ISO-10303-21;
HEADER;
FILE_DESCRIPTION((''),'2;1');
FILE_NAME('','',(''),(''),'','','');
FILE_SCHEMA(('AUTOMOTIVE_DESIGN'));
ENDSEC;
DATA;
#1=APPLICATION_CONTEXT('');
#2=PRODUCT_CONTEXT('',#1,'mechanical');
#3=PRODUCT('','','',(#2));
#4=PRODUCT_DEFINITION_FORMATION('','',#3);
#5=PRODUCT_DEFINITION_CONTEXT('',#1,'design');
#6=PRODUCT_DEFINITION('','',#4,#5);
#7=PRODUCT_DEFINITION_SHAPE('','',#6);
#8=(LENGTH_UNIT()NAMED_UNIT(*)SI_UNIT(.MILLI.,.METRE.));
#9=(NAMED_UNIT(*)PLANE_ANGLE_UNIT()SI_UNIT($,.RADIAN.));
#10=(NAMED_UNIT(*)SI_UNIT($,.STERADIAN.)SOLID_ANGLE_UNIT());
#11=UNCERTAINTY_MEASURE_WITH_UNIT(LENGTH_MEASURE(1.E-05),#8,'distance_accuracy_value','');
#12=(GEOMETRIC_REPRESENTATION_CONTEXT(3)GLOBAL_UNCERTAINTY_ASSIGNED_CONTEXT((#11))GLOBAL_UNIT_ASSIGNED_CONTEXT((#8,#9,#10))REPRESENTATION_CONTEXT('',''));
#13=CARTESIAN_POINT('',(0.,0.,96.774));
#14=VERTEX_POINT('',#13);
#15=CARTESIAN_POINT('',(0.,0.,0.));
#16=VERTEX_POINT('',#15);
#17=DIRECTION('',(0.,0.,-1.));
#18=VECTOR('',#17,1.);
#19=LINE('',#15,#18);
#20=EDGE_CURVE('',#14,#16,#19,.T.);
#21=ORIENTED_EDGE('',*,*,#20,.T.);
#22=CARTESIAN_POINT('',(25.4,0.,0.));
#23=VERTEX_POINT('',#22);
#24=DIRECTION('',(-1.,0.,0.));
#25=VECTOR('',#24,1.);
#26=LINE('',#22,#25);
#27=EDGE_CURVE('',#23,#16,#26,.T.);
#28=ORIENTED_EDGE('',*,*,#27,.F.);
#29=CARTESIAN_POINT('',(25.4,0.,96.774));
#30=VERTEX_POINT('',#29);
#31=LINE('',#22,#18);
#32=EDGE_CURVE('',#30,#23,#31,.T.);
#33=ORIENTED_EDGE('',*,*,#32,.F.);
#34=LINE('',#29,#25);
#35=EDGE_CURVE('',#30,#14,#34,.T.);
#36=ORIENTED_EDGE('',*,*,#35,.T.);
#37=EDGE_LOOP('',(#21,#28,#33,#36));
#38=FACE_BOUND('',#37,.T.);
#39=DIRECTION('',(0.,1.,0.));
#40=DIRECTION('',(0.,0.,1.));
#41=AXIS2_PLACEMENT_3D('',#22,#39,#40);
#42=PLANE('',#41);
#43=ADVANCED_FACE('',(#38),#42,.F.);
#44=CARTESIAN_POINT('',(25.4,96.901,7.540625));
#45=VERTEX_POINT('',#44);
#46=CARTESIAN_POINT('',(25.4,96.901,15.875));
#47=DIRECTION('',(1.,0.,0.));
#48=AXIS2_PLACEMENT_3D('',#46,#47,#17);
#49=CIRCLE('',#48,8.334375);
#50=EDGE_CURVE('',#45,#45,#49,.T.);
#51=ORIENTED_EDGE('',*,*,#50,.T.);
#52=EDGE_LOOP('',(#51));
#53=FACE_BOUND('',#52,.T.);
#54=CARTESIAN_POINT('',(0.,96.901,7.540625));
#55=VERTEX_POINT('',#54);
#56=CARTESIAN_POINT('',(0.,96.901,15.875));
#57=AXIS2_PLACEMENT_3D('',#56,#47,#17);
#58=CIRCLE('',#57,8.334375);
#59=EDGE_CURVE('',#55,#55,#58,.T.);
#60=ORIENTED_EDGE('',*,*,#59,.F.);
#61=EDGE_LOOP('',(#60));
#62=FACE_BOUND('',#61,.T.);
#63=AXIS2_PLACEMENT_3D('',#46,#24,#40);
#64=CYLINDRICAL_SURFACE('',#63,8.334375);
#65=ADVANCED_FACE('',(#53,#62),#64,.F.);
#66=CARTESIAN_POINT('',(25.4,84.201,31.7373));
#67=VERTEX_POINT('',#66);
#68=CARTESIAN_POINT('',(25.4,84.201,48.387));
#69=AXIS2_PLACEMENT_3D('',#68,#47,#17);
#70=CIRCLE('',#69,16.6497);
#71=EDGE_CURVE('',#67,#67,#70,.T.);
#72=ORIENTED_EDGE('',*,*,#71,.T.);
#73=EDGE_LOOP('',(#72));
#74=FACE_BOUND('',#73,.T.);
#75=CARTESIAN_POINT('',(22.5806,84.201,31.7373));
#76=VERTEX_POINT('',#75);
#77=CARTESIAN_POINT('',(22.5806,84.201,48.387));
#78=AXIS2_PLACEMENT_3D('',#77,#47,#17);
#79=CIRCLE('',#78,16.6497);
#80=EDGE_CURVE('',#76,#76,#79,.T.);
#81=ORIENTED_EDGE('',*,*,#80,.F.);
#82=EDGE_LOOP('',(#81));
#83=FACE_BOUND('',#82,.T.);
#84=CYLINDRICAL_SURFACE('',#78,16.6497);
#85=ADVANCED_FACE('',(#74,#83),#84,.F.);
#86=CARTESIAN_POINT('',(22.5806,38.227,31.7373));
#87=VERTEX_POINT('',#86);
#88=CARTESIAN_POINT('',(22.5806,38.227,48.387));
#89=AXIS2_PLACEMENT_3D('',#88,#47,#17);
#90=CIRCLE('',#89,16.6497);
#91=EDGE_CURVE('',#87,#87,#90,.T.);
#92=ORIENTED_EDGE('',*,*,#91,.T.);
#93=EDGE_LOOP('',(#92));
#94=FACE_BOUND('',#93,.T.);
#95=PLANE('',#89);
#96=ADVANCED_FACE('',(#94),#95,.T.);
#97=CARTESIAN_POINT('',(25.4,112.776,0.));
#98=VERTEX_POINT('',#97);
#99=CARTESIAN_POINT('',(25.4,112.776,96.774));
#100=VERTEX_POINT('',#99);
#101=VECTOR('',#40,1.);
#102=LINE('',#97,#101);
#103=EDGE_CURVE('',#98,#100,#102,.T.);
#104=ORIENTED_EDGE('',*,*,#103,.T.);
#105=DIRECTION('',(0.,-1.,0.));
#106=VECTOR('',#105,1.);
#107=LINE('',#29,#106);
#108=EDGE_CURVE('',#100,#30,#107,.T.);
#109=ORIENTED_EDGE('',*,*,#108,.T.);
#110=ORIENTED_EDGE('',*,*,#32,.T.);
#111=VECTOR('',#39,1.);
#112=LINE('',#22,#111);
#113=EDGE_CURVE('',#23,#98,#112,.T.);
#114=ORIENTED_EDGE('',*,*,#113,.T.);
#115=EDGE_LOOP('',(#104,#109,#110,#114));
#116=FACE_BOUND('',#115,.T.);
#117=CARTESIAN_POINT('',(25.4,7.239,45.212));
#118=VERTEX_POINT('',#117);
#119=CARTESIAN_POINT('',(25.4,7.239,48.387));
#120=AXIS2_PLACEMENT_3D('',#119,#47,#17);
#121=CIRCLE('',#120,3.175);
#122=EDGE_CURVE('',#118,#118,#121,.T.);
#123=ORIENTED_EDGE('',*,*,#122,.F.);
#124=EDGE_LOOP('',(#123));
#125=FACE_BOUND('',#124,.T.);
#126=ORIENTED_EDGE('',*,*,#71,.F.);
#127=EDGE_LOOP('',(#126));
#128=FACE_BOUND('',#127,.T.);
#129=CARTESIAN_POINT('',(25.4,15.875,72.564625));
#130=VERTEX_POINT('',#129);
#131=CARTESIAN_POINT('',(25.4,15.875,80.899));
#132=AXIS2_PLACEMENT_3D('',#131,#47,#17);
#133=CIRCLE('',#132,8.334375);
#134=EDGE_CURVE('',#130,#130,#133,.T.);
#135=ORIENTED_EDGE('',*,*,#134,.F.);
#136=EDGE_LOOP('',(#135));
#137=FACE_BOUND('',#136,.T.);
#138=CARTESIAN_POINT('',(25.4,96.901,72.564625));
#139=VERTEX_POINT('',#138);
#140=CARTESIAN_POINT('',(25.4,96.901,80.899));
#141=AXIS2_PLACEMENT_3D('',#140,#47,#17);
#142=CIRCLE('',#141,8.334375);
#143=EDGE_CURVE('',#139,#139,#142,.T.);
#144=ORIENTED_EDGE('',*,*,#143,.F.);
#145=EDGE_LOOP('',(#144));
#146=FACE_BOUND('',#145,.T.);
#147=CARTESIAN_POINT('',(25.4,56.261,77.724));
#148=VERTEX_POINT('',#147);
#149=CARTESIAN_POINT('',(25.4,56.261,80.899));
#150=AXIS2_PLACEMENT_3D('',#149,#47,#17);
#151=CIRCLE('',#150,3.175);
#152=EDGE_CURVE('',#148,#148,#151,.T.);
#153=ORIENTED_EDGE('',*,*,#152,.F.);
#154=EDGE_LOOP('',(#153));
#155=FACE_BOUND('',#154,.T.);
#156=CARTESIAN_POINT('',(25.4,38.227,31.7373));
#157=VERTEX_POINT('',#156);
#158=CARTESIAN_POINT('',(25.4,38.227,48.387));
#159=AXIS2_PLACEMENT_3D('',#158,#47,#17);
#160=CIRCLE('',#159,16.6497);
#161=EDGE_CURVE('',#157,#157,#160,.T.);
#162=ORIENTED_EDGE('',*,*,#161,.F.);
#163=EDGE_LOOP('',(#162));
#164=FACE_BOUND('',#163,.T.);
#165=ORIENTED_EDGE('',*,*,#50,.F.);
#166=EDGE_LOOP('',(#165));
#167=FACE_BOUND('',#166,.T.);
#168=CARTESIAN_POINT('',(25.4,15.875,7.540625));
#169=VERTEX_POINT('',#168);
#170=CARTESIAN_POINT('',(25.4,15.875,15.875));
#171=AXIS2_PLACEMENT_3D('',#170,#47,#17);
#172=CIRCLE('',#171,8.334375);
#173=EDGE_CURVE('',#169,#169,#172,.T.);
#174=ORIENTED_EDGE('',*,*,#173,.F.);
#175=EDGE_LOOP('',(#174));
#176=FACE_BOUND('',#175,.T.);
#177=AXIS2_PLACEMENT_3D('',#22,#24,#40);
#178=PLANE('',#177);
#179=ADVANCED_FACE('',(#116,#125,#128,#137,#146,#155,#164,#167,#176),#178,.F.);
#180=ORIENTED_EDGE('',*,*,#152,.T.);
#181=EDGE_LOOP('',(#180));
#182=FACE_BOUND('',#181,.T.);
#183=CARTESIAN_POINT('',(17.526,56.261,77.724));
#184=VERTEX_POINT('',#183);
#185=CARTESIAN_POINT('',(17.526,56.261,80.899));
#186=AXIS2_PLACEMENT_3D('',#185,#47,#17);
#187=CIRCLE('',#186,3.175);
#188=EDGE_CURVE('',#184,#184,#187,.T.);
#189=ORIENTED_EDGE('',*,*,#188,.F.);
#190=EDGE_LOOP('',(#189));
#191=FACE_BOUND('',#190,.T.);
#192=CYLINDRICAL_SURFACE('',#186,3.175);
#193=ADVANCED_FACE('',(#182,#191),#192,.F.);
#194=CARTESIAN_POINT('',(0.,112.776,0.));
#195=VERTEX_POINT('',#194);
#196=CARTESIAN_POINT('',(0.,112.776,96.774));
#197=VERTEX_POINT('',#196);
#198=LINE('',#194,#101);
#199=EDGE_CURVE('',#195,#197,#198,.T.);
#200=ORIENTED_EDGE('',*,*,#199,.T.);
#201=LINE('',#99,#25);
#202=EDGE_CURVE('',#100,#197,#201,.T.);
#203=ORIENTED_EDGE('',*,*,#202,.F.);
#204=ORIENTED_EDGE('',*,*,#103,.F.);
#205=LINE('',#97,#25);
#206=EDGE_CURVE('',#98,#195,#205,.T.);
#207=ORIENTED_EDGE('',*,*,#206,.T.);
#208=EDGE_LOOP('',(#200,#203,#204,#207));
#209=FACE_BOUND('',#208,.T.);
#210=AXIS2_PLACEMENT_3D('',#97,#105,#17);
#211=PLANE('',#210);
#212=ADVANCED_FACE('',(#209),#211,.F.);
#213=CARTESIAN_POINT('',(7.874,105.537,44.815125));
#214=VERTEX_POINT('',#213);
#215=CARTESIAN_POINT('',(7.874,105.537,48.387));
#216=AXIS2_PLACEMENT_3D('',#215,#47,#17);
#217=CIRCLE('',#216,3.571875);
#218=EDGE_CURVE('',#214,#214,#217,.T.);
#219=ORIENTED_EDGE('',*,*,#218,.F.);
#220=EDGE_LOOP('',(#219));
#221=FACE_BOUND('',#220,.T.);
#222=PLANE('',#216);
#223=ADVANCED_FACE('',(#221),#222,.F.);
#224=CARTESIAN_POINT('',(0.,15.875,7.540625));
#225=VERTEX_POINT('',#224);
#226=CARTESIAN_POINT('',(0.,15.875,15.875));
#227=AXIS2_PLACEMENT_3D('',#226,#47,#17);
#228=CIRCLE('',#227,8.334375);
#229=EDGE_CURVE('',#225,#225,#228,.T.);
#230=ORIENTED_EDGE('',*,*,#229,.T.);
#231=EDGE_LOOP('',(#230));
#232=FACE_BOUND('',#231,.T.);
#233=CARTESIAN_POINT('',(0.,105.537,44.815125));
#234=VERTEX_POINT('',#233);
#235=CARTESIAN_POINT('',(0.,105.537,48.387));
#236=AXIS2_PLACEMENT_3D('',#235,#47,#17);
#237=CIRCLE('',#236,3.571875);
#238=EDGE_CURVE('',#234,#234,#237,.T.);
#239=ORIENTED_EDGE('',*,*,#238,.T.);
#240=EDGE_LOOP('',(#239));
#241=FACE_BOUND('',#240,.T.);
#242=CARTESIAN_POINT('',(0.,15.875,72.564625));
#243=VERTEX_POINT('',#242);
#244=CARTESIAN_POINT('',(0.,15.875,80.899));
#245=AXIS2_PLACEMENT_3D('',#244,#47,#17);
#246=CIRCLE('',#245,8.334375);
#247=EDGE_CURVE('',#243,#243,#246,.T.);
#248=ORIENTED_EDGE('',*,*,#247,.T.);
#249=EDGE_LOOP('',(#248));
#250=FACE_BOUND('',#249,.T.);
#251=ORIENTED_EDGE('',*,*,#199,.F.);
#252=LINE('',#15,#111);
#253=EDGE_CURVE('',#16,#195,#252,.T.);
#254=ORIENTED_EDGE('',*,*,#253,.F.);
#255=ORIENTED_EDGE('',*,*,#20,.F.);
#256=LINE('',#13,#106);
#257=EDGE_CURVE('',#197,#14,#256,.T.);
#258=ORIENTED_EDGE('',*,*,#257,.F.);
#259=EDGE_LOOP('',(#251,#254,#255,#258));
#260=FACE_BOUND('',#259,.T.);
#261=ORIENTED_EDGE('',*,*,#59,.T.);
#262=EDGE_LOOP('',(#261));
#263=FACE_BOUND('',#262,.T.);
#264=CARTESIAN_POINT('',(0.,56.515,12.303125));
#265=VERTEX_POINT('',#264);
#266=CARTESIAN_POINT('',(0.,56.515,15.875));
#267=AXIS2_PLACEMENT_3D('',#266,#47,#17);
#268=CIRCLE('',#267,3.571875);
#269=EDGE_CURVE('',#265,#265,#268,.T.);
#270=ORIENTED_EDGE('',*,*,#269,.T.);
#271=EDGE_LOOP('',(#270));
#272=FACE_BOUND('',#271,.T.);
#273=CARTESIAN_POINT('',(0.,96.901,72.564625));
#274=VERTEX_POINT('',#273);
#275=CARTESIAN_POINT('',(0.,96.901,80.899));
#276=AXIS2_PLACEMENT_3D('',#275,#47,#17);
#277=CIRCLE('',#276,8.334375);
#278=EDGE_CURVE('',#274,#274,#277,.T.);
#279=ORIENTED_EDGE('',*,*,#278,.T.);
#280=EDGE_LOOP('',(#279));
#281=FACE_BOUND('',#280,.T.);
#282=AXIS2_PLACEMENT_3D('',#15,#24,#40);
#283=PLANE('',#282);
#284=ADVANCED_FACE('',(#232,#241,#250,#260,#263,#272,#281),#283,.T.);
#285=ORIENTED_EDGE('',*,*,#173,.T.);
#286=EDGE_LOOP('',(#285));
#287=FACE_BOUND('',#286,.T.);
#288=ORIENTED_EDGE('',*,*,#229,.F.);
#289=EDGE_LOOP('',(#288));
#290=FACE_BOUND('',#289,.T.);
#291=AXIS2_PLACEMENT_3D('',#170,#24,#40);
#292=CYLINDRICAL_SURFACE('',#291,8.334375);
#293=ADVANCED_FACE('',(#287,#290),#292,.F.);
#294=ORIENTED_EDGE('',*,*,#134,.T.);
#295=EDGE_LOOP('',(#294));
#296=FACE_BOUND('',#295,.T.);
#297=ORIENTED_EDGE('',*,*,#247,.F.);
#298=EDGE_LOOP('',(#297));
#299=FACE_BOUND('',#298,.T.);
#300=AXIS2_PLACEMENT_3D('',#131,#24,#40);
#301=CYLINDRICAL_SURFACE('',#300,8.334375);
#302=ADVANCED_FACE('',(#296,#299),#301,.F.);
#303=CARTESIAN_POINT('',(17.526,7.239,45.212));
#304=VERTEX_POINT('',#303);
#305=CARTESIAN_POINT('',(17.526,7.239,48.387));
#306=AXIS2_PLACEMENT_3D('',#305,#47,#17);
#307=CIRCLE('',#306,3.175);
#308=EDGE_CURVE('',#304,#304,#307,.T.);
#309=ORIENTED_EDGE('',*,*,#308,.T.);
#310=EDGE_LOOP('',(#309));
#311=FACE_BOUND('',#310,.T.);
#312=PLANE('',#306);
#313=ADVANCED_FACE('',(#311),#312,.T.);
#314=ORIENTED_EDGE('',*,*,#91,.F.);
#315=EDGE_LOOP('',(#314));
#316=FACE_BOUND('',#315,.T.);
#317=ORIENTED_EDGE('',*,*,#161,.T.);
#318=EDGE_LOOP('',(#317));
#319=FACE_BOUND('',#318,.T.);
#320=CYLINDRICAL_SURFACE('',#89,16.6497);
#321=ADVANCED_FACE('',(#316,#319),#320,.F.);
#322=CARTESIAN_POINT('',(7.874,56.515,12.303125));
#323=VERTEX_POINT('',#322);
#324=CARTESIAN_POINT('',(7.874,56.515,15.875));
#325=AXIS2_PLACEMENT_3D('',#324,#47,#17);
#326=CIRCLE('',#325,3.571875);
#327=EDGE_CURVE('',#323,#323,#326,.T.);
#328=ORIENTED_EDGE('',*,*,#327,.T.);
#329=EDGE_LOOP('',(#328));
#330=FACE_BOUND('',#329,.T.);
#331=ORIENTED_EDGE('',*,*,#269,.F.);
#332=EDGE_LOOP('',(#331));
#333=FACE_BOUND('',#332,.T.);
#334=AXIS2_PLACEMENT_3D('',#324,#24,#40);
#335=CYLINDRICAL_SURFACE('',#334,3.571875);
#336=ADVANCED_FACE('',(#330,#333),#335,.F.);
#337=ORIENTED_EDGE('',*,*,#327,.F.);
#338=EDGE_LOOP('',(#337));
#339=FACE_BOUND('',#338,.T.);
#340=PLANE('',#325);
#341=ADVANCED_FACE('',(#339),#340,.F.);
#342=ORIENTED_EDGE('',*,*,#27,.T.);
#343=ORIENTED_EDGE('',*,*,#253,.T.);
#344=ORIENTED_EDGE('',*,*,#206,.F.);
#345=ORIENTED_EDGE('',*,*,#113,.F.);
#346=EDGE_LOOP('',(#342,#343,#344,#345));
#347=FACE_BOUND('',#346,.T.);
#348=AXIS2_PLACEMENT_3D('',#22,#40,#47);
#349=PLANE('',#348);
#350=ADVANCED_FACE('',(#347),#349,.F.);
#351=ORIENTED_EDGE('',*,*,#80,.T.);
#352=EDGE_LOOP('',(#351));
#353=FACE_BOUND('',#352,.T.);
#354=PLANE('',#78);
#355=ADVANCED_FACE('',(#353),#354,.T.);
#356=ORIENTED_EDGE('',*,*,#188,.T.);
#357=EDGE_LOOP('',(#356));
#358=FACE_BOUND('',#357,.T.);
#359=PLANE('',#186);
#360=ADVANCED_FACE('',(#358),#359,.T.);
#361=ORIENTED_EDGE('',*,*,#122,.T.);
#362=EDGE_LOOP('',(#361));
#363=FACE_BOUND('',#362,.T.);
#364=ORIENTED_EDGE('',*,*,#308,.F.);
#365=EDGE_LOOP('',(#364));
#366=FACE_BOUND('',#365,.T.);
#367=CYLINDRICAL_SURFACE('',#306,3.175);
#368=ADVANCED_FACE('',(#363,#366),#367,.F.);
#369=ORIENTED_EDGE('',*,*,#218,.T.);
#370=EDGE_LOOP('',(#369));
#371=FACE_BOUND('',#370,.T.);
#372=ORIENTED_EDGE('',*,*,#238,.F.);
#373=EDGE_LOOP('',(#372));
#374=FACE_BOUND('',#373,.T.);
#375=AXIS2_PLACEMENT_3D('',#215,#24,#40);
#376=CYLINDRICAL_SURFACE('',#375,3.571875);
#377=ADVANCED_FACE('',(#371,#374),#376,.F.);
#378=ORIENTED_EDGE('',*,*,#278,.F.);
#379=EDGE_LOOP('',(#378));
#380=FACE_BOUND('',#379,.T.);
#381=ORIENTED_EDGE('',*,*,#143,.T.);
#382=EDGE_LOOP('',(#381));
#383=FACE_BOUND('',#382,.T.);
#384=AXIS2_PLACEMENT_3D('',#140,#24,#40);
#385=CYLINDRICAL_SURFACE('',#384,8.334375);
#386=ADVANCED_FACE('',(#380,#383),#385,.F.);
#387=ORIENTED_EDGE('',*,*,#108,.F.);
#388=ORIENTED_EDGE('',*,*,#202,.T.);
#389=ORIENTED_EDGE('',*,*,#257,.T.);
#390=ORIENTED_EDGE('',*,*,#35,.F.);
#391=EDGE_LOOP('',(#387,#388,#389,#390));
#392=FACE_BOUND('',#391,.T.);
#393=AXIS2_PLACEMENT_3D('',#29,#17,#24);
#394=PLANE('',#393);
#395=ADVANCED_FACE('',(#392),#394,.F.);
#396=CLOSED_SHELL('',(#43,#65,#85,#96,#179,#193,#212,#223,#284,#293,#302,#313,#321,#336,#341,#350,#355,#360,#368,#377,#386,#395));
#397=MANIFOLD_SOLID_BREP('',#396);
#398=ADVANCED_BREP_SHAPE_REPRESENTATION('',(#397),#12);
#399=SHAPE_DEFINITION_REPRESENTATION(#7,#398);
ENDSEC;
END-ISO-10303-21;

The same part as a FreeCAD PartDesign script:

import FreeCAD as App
import Part
import Sketcher

V = App.Vector
Q = App.Units.Quantity

doc = App.newDocument("Part")
body = doc.addObject("PartDesign::Body", "Body")

sketch1 = body.newObject("Sketcher::SketchObject", "Sketch")
sketch1.AttachmentSupport = (doc.getObject("YZ_Plane"), [""])
sketch1.MapMode = "FlatFace"
sketch1.addGeometry([
    Part.LineSegment(V(0, 97, 0), V(0, 0, 0)),
    Part.LineSegment(V(0, 0, 0), V(113, 0, 0)),
    Part.LineSegment(V(113, 0, 0), V(113, 97, 0)),
    Part.LineSegment(V(113, 97, 0), V(0, 97, 0)),
], False)
sketch1.addConstraint([
    Sketcher.Constraint("Coincident", 0, 2, 1, 1),
    Sketcher.Constraint("Coincident", 1, 2, 2, 1),
    Sketcher.Constraint("Coincident", 2, 2, 3, 1),
    Sketcher.Constraint("Coincident", 3, 2, 0, 1),
    Sketcher.Constraint("Vertical", 0),
    Sketcher.Constraint("Horizontal", 1),
    Sketcher.Constraint("Vertical", 2),
    Sketcher.Constraint("Horizontal", 3),
    Sketcher.Constraint("Coincident", 0, 2, -1, 1),
    Sketcher.Constraint("DistanceX", 1, 1, 1, 2, Q("4.44 in")),
    Sketcher.Constraint("DistanceY", 0, 2, 0, 1, Q("3.81 in")),
])
pad1 = body.newObject("PartDesign::Pad", "Pad")
pad1.Profile = sketch1
pad1.Length = Q("1 in")

sketch2 = body.newObject("Sketcher::SketchObject", "Sketch001")
sketch2.AttachmentSupport = (doc.getObject("YZ_Plane"), [""])
sketch2.MapMode = "FlatFace"
sketch2.addGeometry(Part.Circle(V(16, 16, 0), V(0, 0, 1), 8), False)
sketch2.addConstraint([
    Sketcher.Constraint("Diameter", 0, Q("0.65625 in")),
    Sketcher.Constraint("DistanceX", -1, 1, 0, 3, Q("0.625 in")),
    Sketcher.Constraint("DistanceY", -1, 1, 0, 3, Q("0.625 in")),
])
pocket1 = body.newObject("PartDesign::Pocket", "Pocket")
pocket1.Profile = sketch2
pocket1.Type = "ThroughAll"
pocket1.Reversed = True

sketch3 = body.newObject("Sketcher::SketchObject", "Sketch002")
sketch3.AttachmentSupport = (doc.getObject("YZ_Plane"), [""])
sketch3.MapMode = "FlatFace"
sketch3.addGeometry([
    Part.Circle(V(97, 16, 0), V(0, 0, 1), 8),
    Part.Circle(V(16, 81, 0), V(0, 0, 1), 8),
    Part.Circle(V(97, 81, 0), V(0, 0, 1), 8),
], False)
sketch3.addConstraint([
    Sketcher.Constraint("Equal", 0, 1),
    Sketcher.Constraint("Equal", 1, 2),
    Sketcher.Constraint("Horizontal", 1, 3, 2, 3),
    Sketcher.Constraint("Vertical", 0, 3, 2, 3),
    Sketcher.Constraint("Diameter", 0, Q("0.65625 in")),
    Sketcher.Constraint("DistanceX", 1, 3, 0, 3, Q("3.19 in")),
    Sketcher.Constraint("DistanceY", 0, 3, 1, 3, Q("2.56 in")),
    Sketcher.Constraint("DistanceX", -1, 1, 0, 3, Q("3.815 in")),
    Sketcher.Constraint("DistanceY", -1, 1, 0, 3, Q("0.625 in")),
])
pocket2 = body.newObject("PartDesign::Pocket", "Pocket001")
pocket2.Profile = sketch3
pocket2.Type = "ThroughAll"
pocket2.Reversed = True

sketch4 = body.newObject("Sketcher::SketchObject", "Sketch003")
sketch4.AttachmentSupport = (doc.getObject("YZ_Plane"), [""])
sketch4.MapMode = "FlatFace"
sketch4.addGeometry(Part.Circle(V(105.5, 48.4, 0), V(0, 0, 1), 3.6), False)
sketch4.addConstraint([
    Sketcher.Constraint("Diameter", 0, Q("0.28125 in")),
    Sketcher.Constraint("DistanceX", -1, 1, 0, 3, Q("4.155 in")),
    Sketcher.Constraint("DistanceY", -1, 1, 0, 3, Q("1.905 in")),
])
pocket3 = body.newObject("PartDesign::Pocket", "Pocket002")
pocket3.Profile = sketch4
pocket3.Length = Q("0.31 in")
pocket3.Reversed = True

sketch5 = body.newObject("Sketcher::SketchObject", "Sketch004")
sketch5.AttachmentSupport = (doc.getObject("YZ_Plane"), [""])
sketch5.MapMode = "FlatFace"
sketch5.addGeometry(Part.Circle(V(56.5, 15.9, 0), V(0, 0, 1), 3.6), False)
sketch5.addConstraint([
    Sketcher.Constraint("Diameter", 0, Q("0.28125 in")),
    Sketcher.Constraint("DistanceX", -1, 1, 0, 3, Q("2.225 in")),
    Sketcher.Constraint("DistanceY", -1, 1, 0, 3, Q("0.625 in")),
])
pocket4 = body.newObject("PartDesign::Pocket", "Pocket003")
pocket4.Profile = sketch5
pocket4.Length = Q("0.31 in")
pocket4.Reversed = True

sketch6 = body.newObject("Sketcher::SketchObject", "Sketch005")
sketch6.AttachmentSupport = (doc.getObject("YZ_Plane"), [""])
sketch6.MapMode = "FlatFace"
sketch6.AttachmentOffset = App.Placement(V(0, 0, 1 * 25.4), App.Rotation())
sketch6.addGeometry(Part.Circle(V(7.2, 48.4, 0), V(0, 0, 1), 3.2), False)
sketch6.addConstraint([
    Sketcher.Constraint("Diameter", 0, Q("0.25 in")),
    Sketcher.Constraint("DistanceX", -1, 1, 0, 3, Q("0.285 in")),
    Sketcher.Constraint("DistanceY", -1, 1, 0, 3, Q("1.905 in")),
])
pocket5 = body.newObject("PartDesign::Pocket", "Pocket004")
pocket5.Profile = sketch6
pocket5.Length = Q("0.31 in")

sketch7 = body.newObject("Sketcher::SketchObject", "Sketch006")
sketch7.AttachmentSupport = (doc.getObject("YZ_Plane"), [""])
sketch7.MapMode = "FlatFace"
sketch7.AttachmentOffset = App.Placement(V(0, 0, 1 * 25.4), App.Rotation())
sketch7.addGeometry(Part.Circle(V(56.3, 80.9, 0), V(0, 0, 1), 3.2), False)
sketch7.addConstraint([
    Sketcher.Constraint("Diameter", 0, Q("0.25 in")),
    Sketcher.Constraint("DistanceX", -1, 1, 0, 3, Q("2.215 in")),
    Sketcher.Constraint("DistanceY", -1, 1, 0, 3, Q("3.185 in")),
])
pocket6 = body.newObject("PartDesign::Pocket", "Pocket005")
pocket6.Profile = sketch7
pocket6.Length = Q("0.31 in")

sketch8 = body.newObject("Sketcher::SketchObject", "Sketch007")
sketch8.AttachmentSupport = (doc.getObject("YZ_Plane"), [""])
sketch8.MapMode = "FlatFace"
sketch8.AttachmentOffset = App.Placement(V(0, 0, 1 * 25.4), App.Rotation())
sketch8.addGeometry(Part.Circle(V(38, 48, 0), V(0, 0, 1), 17), False)
sketch8.addConstraint([
    Sketcher.Constraint("Diameter", 0, Q("1.311 in")),
    Sketcher.Constraint("DistanceX", -1, 1, 0, 3, Q("1.505 in")),
    Sketcher.Constraint("DistanceY", -1, 1, 0, 3, Q("1.905 in")),
])
pocket7 = body.newObject("PartDesign::Pocket", "Pocket006")
pocket7.Profile = sketch8
pocket7.Length = Q("0.111 in")

sketch9 = body.newObject("Sketcher::SketchObject", "Sketch008")
sketch9.AttachmentSupport = (doc.getObject("YZ_Plane"), [""])
sketch9.MapMode = "FlatFace"
sketch9.AttachmentOffset = App.Placement(V(0, 0, 1 * 25.4), App.Rotation())
sketch9.addGeometry(Part.Circle(V(84, 48, 0), V(0, 0, 1), 17), False)
sketch9.addConstraint([
    Sketcher.Constraint("Diameter", 0, Q("1.311 in")),
    Sketcher.Constraint("DistanceX", -1, 1, 0, 3, Q("3.315 in")),
    Sketcher.Constraint("DistanceY", -1, 1, 0, 3, Q("1.905 in")),
])
pocket8 = body.newObject("PartDesign::Pocket", "Pocket007")
pocket8.Profile = sketch9
pocket8.Length = Q("0.111 in")

doc.recompute()
